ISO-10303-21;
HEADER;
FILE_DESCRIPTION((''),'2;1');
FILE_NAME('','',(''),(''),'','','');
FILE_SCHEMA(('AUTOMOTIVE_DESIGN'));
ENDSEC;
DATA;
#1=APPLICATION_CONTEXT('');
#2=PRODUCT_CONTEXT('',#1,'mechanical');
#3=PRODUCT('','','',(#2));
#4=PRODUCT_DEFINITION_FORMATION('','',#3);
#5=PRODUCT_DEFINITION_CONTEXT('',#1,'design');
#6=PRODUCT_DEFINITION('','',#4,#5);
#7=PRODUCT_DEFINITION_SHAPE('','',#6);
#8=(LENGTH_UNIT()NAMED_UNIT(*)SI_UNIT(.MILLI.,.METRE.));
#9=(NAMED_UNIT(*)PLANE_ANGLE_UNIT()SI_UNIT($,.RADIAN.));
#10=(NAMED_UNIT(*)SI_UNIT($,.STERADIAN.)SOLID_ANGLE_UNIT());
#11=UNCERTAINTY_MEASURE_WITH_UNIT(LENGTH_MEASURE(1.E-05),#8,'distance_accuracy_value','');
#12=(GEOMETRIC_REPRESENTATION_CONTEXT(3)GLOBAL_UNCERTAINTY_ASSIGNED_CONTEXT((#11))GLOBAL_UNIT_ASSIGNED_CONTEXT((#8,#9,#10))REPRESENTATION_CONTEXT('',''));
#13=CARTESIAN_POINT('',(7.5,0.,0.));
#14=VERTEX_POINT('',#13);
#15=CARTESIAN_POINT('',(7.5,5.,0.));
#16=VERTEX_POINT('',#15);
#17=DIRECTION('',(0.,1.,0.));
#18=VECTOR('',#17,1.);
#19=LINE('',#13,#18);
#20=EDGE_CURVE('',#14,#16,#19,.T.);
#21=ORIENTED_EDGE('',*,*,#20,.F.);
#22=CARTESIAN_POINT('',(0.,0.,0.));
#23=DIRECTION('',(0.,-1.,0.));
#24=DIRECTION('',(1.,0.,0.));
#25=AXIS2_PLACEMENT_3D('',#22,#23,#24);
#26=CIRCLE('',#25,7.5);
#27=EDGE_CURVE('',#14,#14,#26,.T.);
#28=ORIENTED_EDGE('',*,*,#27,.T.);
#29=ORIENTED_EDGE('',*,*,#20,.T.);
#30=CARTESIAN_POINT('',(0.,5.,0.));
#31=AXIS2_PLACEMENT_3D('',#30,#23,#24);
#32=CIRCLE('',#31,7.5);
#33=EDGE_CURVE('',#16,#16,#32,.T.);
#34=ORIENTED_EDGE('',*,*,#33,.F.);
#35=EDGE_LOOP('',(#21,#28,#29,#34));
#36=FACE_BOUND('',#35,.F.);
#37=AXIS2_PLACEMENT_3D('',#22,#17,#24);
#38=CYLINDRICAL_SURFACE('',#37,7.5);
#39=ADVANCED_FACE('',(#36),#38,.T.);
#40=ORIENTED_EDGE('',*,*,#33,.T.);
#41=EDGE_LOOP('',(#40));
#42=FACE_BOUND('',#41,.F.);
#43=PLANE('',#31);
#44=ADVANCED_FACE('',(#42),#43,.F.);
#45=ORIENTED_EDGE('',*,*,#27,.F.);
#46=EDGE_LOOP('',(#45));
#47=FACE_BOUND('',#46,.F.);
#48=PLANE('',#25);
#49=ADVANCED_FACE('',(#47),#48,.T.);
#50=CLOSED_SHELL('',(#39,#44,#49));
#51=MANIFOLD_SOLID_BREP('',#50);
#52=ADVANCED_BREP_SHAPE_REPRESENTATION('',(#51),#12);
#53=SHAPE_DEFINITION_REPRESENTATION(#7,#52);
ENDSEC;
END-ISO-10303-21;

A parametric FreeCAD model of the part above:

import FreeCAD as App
import Part
import Sketcher
from FreeCAD import Vector
Q = App.Units.Quantity


def add_polygon(sketch, points):
    """Adds a closed chain of lines whose ends are joined by coincident constraints."""
    first, n = sketch.GeometryCount, len(points)
    for a, b in zip(points, points[1:] + points[:1]):
        sketch.addGeometry(Part.LineSegment(App.Vector(*a, 0), App.Vector(*b, 0)), False)
    for i in range(n):
        sketch.addConstraint(Sketcher.Constraint("Coincident", first + i, 2, first + (i + 1) % n, 1))

doc = App.newDocument("Part")
params = doc.addObject("Spreadsheet::Sheet", "Params")
for row, (alias, value) in enumerate([
    ("sketch1_height", "5 mm"),
    ("sketch1_width", "7.5 mm"),
    ("revolution_angle", "360 deg"),
], start=1):
    params.set(f"A{row}", alias)
    params.set(f"B{row}", "=" + value)
    params.setAlias(f"B{row}", alias)

body = doc.addObject("PartDesign::Body", "Body")

# Sketch on XY plane
sketch1 = body.newObject("Sketcher::SketchObject", "Sketch")
sketch1.AttachmentSupport = (doc.getObject("XY_Plane"), [""])
sketch1.MapMode = "FlatFace"
add_polygon(sketch1, [(0, 5), (0, 0), (7.5, 0), (7.5, 5)])  # lines 0-3
sketch1.addConstraint([
    Sketcher.Constraint("Vertical", 0),
    Sketcher.Constraint("Horizontal", 1),
    Sketcher.Constraint("Vertical", 2),
    Sketcher.Constraint("Horizontal", 3),
    Sketcher.Constraint("Coincident", 0, 2, -1, 1),
    Sketcher.Constraint("DistanceY", 0, 2, 0, 1, Q("5 mm")),
    Sketcher.Constraint("DistanceX", 1, 1, 1, 2, Q("7.5 mm")),
])
sketch1.setExpression("Constraints[9]", "Params.sketch1_height")
sketch1.setExpression("Constraints[10]", "Params.sketch1_width")
revolution = body.newObject("PartDesign::Revolution", "Revolution")
revolution.Profile = sketch1
revolution.ReferenceAxis = (sketch1, ["V_Axis"])
revolution.setExpression("Angle", "Params.revolution_angle")

doc.recompute()
